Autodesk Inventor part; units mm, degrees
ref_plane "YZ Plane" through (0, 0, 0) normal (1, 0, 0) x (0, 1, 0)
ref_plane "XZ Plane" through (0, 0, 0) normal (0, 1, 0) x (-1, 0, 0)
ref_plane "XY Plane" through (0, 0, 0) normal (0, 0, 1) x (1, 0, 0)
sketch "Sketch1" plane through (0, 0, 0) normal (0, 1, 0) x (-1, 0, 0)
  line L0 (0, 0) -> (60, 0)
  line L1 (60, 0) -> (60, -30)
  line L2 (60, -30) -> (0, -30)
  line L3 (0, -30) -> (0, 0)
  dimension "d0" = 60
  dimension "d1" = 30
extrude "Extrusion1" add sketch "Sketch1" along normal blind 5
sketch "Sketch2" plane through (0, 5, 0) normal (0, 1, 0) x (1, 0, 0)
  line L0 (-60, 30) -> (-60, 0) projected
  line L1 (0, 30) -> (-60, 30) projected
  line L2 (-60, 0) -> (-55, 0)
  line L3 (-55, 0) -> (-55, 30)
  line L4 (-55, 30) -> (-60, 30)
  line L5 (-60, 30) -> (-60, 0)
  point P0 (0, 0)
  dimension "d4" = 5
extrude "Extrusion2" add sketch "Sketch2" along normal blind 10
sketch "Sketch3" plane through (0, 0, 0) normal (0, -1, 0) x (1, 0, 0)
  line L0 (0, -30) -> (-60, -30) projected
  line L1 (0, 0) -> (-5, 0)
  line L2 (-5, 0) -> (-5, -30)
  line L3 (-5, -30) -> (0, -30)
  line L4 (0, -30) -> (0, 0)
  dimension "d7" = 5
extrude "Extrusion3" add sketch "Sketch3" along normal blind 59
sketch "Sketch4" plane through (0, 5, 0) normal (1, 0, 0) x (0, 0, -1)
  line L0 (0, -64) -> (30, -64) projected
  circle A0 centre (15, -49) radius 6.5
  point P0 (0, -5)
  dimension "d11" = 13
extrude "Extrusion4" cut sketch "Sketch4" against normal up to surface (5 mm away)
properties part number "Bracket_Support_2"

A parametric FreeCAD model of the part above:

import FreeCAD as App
import Part
import Sketcher
Q = App.Units.Quantity


def add_polygon(sketch, points):
    """Adds a closed chain of lines whose ends are joined by coincident constraints."""
    first, n = sketch.GeometryCount, len(points)
    for a, b in zip(points, points[1:] + points[:1]):
        sketch.addGeometry(Part.LineSegment(App.Vector(*a, 0), App.Vector(*b, 0)), False)
    for i in range(n):
        sketch.addConstraint(Sketcher.Constraint("Coincident", first + i, 2, first + (i + 1) % n, 1))

doc = App.newDocument("Part")
body = doc.addObject("PartDesign::Body", "Body")

# Sketch on XZ plane
sketch1 = body.newObject("Sketcher::SketchObject", "Sketch")
sketch1.AttachmentSupport = (doc.getObject("XZ_Plane"), [""])
sketch1.MapMode = "FlatFace"
add_polygon(sketch1, [(-60, 0), (0, 0), (0, -30), (-60, -30)])  # lines 0-3
sketch1.addConstraint([
    Sketcher.Constraint("Horizontal", 0),
    Sketcher.Constraint("Vertical", 1),
    Sketcher.Constraint("Horizontal", 2),
    Sketcher.Constraint("Vertical", 3),
    Sketcher.Constraint("Coincident", 0, 2, -1, 1),
    Sketcher.Constraint("DistanceX", 0, 1, 0, 2, Q("60 mm")),
    Sketcher.Constraint("DistanceY", 1, 2, 1, 1, Q("30 mm")),
])
pad1 = body.newObject("PartDesign::Pad", "Pad")
pad1.Profile = sketch1
pad1.Length = 5
pad1.Reversed = True

# Sketch on XZ plane
sketch2 = body.newObject("Sketcher::SketchObject", "Sketch001")
sketch2.AttachmentSupport = (doc.getObject("XZ_Plane"), [""])
sketch2.MapMode = "FlatFace"
sketch2.AttachmentOffset = App.Placement(App.Vector(0, 0, -5), App.Rotation())
add_polygon(sketch2, [(-55, -30), (-60, -30), (-60, 0), (-55, 0)])  # lines 0-3
sketch2.addConstraint([
    Sketcher.Constraint("Horizontal", 0),
    Sketcher.Constraint("Vertical", 1),
    Sketcher.Constraint("Horizontal", 2),
    Sketcher.Constraint("Vertical", 3),
    Sketcher.Constraint("PointOnObject", 1, 2, -1),
    Sketcher.Constraint("DistanceX", 0, 2, 0, 1, Q("5 mm")),
    Sketcher.Constraint("DistanceY", 1, 1, 1, 2, Q("30 mm")),
    Sketcher.Constraint("DistanceX", 0, 2, -1, 1, Q("60 mm")),
])
pad2 = body.newObject("PartDesign::Pad", "Pad001")
pad2.Profile = sketch2
pad2.Length = 10
pad2.Reversed = True

# Sketch on XZ plane
sketch3 = body.newObject("Sketcher::SketchObject", "Sketch002")
sketch3.AttachmentSupport = (doc.getObject("XZ_Plane"), [""])
sketch3.MapMode = "FlatFace"
add_polygon(sketch3, [(-5, -30), (0, -30), (0, 0), (-5, 0)])  # lines 0-3
sketch3.addConstraint([
    Sketcher.Constraint("Horizontal", 0),
    Sketcher.Constraint("Vertical", 1),
    Sketcher.Constraint("Horizontal", 2),
    Sketcher.Constraint("Vertical", 3),
    Sketcher.Constraint("Coincident", 1, 2, -1, 1),
    Sketcher.Constraint("DistanceX", 0, 1, 0, 2, Q("5 mm")),
    Sketcher.Constraint("DistanceY", 1, 1, 1, 2, Q("30 mm")),
])
pad3 = body.newObject("PartDesign::Pad", "Pad002")
pad3.Profile = sketch3
pad3.Length = 59

# Sketch on YZ plane
sketch4 = body.newObject("Sketcher::SketchObject", "Sketch003")
sketch4.AttachmentSupport = (doc.getObject("YZ_Plane"), [""])
sketch4.MapMode = "FlatFace"
sketch4.addGeometry(Part.Circle(App.Vector(-44, -15, 0), App.Vector(0, 0, 1), 6), False)
sketch4.addConstraint([
    Sketcher.Constraint("Diameter", 0, Q("13 mm")),
    Sketcher.Constraint("DistanceX", 0, 3, -1, 1, Q("44 mm")),
    Sketcher.Constraint("DistanceY", 0, 3, -1, 1, Q("15 mm")),
])
pocket1 = body.newObject("PartDesign::Pocket", "Pocket")
pocket1.Profile = sketch4
pocket1.Length = 5

doc.recompute()
